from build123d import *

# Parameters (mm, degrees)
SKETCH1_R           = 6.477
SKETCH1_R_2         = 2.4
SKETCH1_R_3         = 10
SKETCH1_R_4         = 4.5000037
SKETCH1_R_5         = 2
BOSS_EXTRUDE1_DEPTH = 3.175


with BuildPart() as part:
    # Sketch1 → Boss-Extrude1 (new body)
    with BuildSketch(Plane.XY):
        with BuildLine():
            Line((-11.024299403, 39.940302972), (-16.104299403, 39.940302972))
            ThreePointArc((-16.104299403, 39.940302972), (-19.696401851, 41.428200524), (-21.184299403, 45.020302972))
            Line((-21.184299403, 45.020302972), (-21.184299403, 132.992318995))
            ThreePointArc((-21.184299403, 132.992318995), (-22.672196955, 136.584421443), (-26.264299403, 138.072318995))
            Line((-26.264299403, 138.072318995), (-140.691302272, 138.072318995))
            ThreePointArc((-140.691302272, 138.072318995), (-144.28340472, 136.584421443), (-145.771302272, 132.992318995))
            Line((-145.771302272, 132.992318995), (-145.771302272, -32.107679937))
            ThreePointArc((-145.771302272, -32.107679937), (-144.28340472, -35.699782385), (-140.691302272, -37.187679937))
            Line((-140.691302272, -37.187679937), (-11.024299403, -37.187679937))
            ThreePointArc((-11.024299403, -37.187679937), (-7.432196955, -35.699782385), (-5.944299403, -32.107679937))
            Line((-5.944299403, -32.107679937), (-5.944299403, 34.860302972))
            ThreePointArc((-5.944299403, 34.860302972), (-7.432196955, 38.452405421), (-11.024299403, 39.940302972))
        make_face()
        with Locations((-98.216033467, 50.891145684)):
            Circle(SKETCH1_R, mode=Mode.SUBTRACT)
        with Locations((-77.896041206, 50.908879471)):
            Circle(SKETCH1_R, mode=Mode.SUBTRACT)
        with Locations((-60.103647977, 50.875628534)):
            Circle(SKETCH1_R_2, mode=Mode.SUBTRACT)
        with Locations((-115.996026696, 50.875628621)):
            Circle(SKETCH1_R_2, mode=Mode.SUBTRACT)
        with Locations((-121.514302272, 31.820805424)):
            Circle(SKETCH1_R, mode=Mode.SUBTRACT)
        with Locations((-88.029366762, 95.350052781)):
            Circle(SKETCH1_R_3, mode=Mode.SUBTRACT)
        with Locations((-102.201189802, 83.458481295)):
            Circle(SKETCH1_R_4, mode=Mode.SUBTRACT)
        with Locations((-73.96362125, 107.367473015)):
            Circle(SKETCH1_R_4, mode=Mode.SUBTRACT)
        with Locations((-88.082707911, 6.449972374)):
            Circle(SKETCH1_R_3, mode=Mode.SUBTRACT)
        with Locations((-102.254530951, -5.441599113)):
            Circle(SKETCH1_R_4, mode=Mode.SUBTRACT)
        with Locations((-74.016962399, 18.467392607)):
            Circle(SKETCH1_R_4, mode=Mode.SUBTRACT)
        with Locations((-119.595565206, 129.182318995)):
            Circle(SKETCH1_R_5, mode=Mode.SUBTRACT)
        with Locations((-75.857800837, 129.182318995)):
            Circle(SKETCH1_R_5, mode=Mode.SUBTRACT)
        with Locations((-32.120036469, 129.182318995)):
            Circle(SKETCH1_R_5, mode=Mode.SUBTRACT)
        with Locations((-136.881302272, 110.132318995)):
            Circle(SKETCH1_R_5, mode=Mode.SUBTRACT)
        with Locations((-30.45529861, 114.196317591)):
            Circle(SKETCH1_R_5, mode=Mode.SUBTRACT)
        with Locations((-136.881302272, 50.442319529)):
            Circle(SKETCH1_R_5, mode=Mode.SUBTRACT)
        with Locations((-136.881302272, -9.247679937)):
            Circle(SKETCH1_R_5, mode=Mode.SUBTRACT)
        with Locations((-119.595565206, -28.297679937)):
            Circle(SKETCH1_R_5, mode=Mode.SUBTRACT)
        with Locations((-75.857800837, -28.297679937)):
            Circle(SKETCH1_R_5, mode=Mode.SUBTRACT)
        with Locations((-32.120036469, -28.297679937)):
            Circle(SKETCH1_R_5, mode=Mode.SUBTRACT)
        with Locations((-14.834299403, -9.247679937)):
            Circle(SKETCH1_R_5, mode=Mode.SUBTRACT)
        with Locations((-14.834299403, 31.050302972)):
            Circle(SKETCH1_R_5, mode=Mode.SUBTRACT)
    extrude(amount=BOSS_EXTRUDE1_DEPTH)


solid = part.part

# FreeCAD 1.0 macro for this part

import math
import FreeCAD as App
import Part
import Sketcher

V = App.Vector
Q = App.Units.Quantity

doc = App.newDocument("Part")
body = doc.addObject("PartDesign::Body", "Body")

# Sketch on XY plane
sketch1 = body.newObject("Sketcher::SketchObject", "Sketch")
sketch1.AttachmentSupport = (doc.getObject("XY_Plane"), [""])
sketch1.MapMode = "FlatFace"
sketch1.addGeometry(Part.LineSegment(V(-11.024299, 39.940303, 0), V(-16.104299, 39.940303, 0)), False)
sketch1.addGeometry(Part.ArcOfCircle(Part.Circle(V(-16.104299, 45.020303, 0), V(0, 0, 1), 5.08), math.radians(-180), math.radians(-90)), False)
sketch1.addGeometry(Part.LineSegment(V(-21.184299, 45.020303, 0), V(-21.184299, 132.992319, 0)), False)
sketch1.addGeometry(Part.ArcOfCircle(Part.Circle(V(-26.264299, 132.992319, 0), V(0, 0, 1), 5.08), math.radians(0), math.radians(90)), False)
sketch1.addGeometry(Part.LineSegment(V(-26.264299, 138.072319, 0), V(-140.691302, 138.072319, 0)), False)
sketch1.addGeometry(Part.ArcOfCircle(Part.Circle(V(-140.691302, 132.992319, 0), V(0, 0, 1), 5.08), math.radians(90), math.radians(180)), False)
sketch1.addGeometry(Part.LineSegment(V(-145.771302, 132.992319, 0), V(-145.771302, -32.10768, 0)), False)
sketch1.addGeometry(Part.ArcOfCircle(Part.Circle(V(-140.691302, -32.10768, 0), V(0, 0, 1), 5.08), math.radians(-180), math.radians(-90)), False)
sketch1.addGeometry(Part.LineSegment(V(-140.691302, -37.18768, 0), V(-11.024299, -37.18768, 0)), False)
sketch1.addGeometry(Part.ArcOfCircle(Part.Circle(V(-11.024299, -32.10768, 0), V(0, 0, 1), 5.08), math.radians(-90), math.radians(0)), False)
sketch1.addGeometry(Part.LineSegment(V(-5.944299, -32.10768, 0), V(-5.944299, 34.860303, 0)), False)
sketch1.addGeometry(Part.ArcOfCircle(Part.Circle(V(-11.024299, 34.860303, 0), V(0, 0, 1), 5.08), math.radians(0), math.radians(90)), False)
sketch1.addGeometry(Part.Circle(V(-119.595565, -28.29768, 0), V(0, 0, 1), 2), False)
sketch1.addGeometry(Part.Circle(V(-136.881302, -9.24768, 0), V(0, 0, 1), 2), False)
sketch1.addGeometry(Part.Circle(V(-102.254531, -5.441599, 0), V(0, 0, 1), 4.500004), False)
sketch1.addGeometry(Part.Circle(V(-88.082708, 6.449972, 0), V(0, 0, 1), 10), False)
sketch1.addGeometry(Part.Circle(V(-121.514302, 31.820805, 0), V(0, 0, 1), 6.477), False)
sketch1.addGeometry(Part.Circle(V(-75.857801, -28.29768, 0), V(0, 0, 1), 2), False)
sketch1.addGeometry(Part.Circle(V(-32.120036, -28.29768, 0), V(0, 0, 1), 2), False)
sketch1.addGeometry(Part.Circle(V(-14.834299, -9.24768, 0), V(0, 0, 1), 2), False)
sketch1.addGeometry(Part.Circle(V(-74.016962, 18.467393, 0), V(0, 0, 1), 4.500004), False)
sketch1.addGeometry(Part.Circle(V(-14.834299, 31.050303, 0), V(0, 0, 1), 2), False)
sketch1.addGeometry(Part.Circle(V(-136.881302, 50.44232, 0), V(0, 0, 1), 2), False)
sketch1.addGeometry(Part.Circle(V(-115.996027, 50.875629, 0), V(0, 0, 1), 2.4), False)
sketch1.addGeometry(Part.Circle(V(-98.216033, 50.891146, 0), V(0, 0, 1), 6.477), False)
sketch1.addGeometry(Part.Circle(V(-77.896041, 50.908879, 0), V(0, 0, 1), 6.477), False)
sketch1.addGeometry(Part.Circle(V(-102.20119, 83.458481, 0), V(0, 0, 1), 4.500004), False)
sketch1.addGeometry(Part.Circle(V(-136.881302, 110.132319, 0), V(0, 0, 1), 2), False)
sketch1.addGeometry(Part.Circle(V(-119.595565, 129.182319, 0), V(0, 0, 1), 2), False)
sketch1.addGeometry(Part.Circle(V(-88.029367, 95.350053, 0), V(0, 0, 1), 10), False)
sketch1.addGeometry(Part.Circle(V(-60.103648, 50.875629, 0), V(0, 0, 1), 2.4), False)
sketch1.addGeometry(Part.Circle(V(-73.963621, 107.367473, 0), V(0, 0, 1), 4.500004), False)
sketch1.addGeometry(Part.Circle(V(-75.857801, 129.182319, 0), V(0, 0, 1), 2), False)
sketch1.addGeometry(Part.Circle(V(-30.455299, 114.196318, 0), V(0, 0, 1), 2), False)
sketch1.addGeometry(Part.Circle(V(-32.120036, 129.182319, 0), V(0, 0, 1), 2), False)
sketch1.addConstraint(Sketcher.Constraint("Tangent", 0, 2, 1, 2))
sketch1.addConstraint(Sketcher.Constraint("Tangent", 1, 1, 2, 1))
sketch1.addConstraint(Sketcher.Constraint("Tangent", 2, 2, 3, 1))
sketch1.addConstraint(Sketcher.Constraint("Tangent", 3, 2, 4, 1))
sketch1.addConstraint(Sketcher.Constraint("Tangent", 4, 2, 5, 1))
sketch1.addConstraint(Sketcher.Constraint("Tangent", 5, 2, 6, 1))
sketch1.addConstraint(Sketcher.Constraint("Tangent", 6, 2, 7, 1))
sketch1.addConstraint(Sketcher.Constraint("Tangent", 7, 2, 8, 1))
sketch1.addConstraint(Sketcher.Constraint("Tangent", 8, 2, 9, 1))
sketch1.addConstraint(Sketcher.Constraint("Tangent", 9, 2, 10, 1))
sketch1.addConstraint(Sketcher.Constraint("Tangent", 10, 2, 11, 1))
sketch1.addConstraint(Sketcher.Constraint("Tangent", 11, 2, 0, 1))
sketch1.addConstraint(Sketcher.Constraint("Horizontal", 0))
sketch1.addConstraint(Sketcher.Constraint("Vertical", 2))
sketch1.addConstraint(Sketcher.Constraint("Horizontal", 4))
sketch1.addConstraint(Sketcher.Constraint("Vertical", 6))
sketch1.addConstraint(Sketcher.Constraint("Horizontal", 8))
sketch1.addConstraint(Sketcher.Constraint("Vertical", 10))
sketch1.addConstraint(Sketcher.Constraint("Equal", 1, 3))
sketch1.addConstraint(Sketcher.Constraint("Equal", 3, 5))
sketch1.addConstraint(Sketcher.Constraint("Equal", 5, 7))
sketch1.addConstraint(Sketcher.Constraint("Equal", 7, 9))
sketch1.addConstraint(Sketcher.Constraint("Equal", 9, 11))
sketch1.addConstraint(Sketcher.Constraint("Equal", 12, 13))
sketch1.addConstraint(Sketcher.Constraint("Equal", 13, 17))
sketch1.addConstraint(Sketcher.Constraint("Equal", 17, 18))
sketch1.addConstraint(Sketcher.Constraint("Equal", 18, 19))
sketch1.addConstraint(Sketcher.Constraint("Equal", 14, 20))
sketch1.addConstraint(Sketcher.Constraint("Equal", 19, 21))
sketch1.addConstraint(Sketcher.Constraint("Equal", 21, 22))
sketch1.addConstraint(Sketcher.Constraint("Equal", 16, 24))
sketch1.addConstraint(Sketcher.Constraint("Equal", 24, 25))
sketch1.addConstraint(Sketcher.Constraint("Equal", 20, 26))
sketch1.addConstraint(Sketcher.Constraint("Equal", 22, 27))
sketch1.addConstraint(Sketcher.Constraint("Equal", 27, 28))
sketch1.addConstraint(Sketcher.Constraint("Equal", 15, 29))
sketch1.addConstraint(Sketcher.Constraint("Equal", 23, 30))
sketch1.addConstraint(Sketcher.Constraint("Equal", 26, 31))
sketch1.addConstraint(Sketcher.Constraint("Equal", 28, 32))
sketch1.addConstraint(Sketcher.Constraint("Equal", 32, 33))
sketch1.addConstraint(Sketcher.Constraint("Equal", 33, 34))
sketch1.addConstraint(Sketcher.Constraint("Horizontal", 12, 3, 17, 3))
sketch1.addConstraint(Sketcher.Constraint("Horizontal", 17, 3, 18, 3))
sketch1.addConstraint(Sketcher.Constraint("Horizontal", 13, 3, 19, 3))
sketch1.addConstraint(Sketcher.Constraint("Horizontal", 23, 3, 30, 3))
sketch1.addConstraint(Sketcher.Constraint("Horizontal", 28, 3, 32, 3))
sketch1.addConstraint(Sketcher.Constraint("Horizontal", 32, 3, 34, 3))
sketch1.addConstraint(Sketcher.Constraint("Vertical", 19, 3, 21, 3))
sketch1.addConstraint(Sketcher.Constraint("Vertical", 13, 3, 22, 3))
sketch1.addConstraint(Sketcher.Constraint("Vertical", 22, 3, 27, 3))
sketch1.addConstraint(Sketcher.Constraint("Vertical", 12, 3, 28, 3))
sketch1.addConstraint(Sketcher.Constraint("Vertical", 17, 3, 32, 3))
sketch1.addConstraint(Sketcher.Constraint("Vertical", 18, 3, 34, 3))
sketch1.addConstraint(Sketcher.Constraint("Radius", 1, Q("0.2 in")))
sketch1.addConstraint(Sketcher.Constraint("Diameter", 16, Q("0.51 in")))
sketch1.addConstraint(Sketcher.Constraint("DistanceX", 0, 2, 0, 1, Q("0.2 in")))
sketch1.addConstraint(Sketcher.Constraint("DistanceY", 6, 2, 6, 1, Q("6.5 in")))
sketch1.addConstraint(Sketcher.Constraint("DistanceY", 7, 3, 13, 3, Q("0.9 in")))
sketch1.addConstraint(Sketcher.Constraint("DistanceY", 27, 3, 5, 3, Q("0.9 in")))
sketch1.addConstraint(Sketcher.Constraint("DistanceY", 22, 3, 28, 3, Q("3.1 in")))
sketch1.addConstraint(Sketcher.Constraint("Diameter", 12, 4.0))
sketch1.addConstraint(Sketcher.Constraint("Diameter", 15, 20.0))
sketch1.addConstraint(Sketcher.Constraint("Diameter", 23, 4.8))
sketch1.addConstraint(Sketcher.Constraint("DistanceX", 4, 2, 4, 1, Q("4.5050001 in")))
sketch1.addConstraint(Sketcher.Constraint("DistanceY", 7, 3, 12, 3, Q("0.15 in")))
sketch1.addConstraint(Sketcher.Constraint("DistanceX", 7, 3, 13, 3, Q("0.15 in")))
sketch1.addConstraint(Sketcher.Constraint("DistanceX", 19, 3, 9, 3, Q("0.15 in")))
sketch1.addConstraint(Sketcher.Constraint("DistanceY", 21, 3, 11, 3, Q("0.15 in")))
sketch1.addConstraint(Sketcher.Constraint("DistanceY", 13, 3, 22, 3, Q("2.35 in")))
sketch1.addConstraint(Sketcher.Constraint("DistanceY", 33, 3, 3, 3, Q("0.7400001 in")))
sketch1.addConstraint(Sketcher.Constraint("DistanceX", 13, 3, 16, 3, Q("0.605 in")))
sketch1.addConstraint(Sketcher.Constraint("DistanceX", 33, 3, 3, 3, Q("0.165 in")))
sketch1.addConstraint(Sketcher.Constraint("Diameter", 14, 9.000007))
sketch1.addConstraint(Sketcher.Constraint("DistanceX", 13, 3, 17, 3, Q("2.4025001 in")))
sketch1.addConstraint(Sketcher.Constraint("DistanceX", 1, 3, -1, 1, 16.104299))
sketch1.addConstraint(Sketcher.Constraint("DistanceY", 14, 3, -1, 1, 5.441599))
sketch1.addConstraint(Sketcher.Constraint("DistanceY", 25, 3, 26, 3, 32.549602))
sketch1.addConstraint(Sketcher.Constraint("DistanceX", 28, 3, 29, 3, 31.566198))
sketch1.addConstraint(Sketcher.Constraint("DistanceY", 2, 1, 2, 2, 87.972016))
sketch1.addConstraint(Sketcher.Constraint("DistanceY", -1, 1, 3, 3, 132.992319))
sketch1.addConstraint(Sketcher.Constraint("DistanceX", 14, 3, -1, 1, 102.254531))
sketch1.addConstraint(Sketcher.Constraint("DistanceY", -1, 1, 23, 3, 50.875629))
sketch1.addConstraint(Sketcher.Constraint("DistanceX", 25, 3, -1, 1, 77.896041))
sketch1.addConstraint(Sketcher.Constraint("DistanceY", -1, 1, 25, 3, 50.908879))
sketch1.addConstraint(Sketcher.Constraint("DistanceX", 26, 3, -1, 1, 102.20119))
sketch1.addConstraint(Sketcher.Constraint("DistanceX", 31, 3, -1, 1, 73.963621))
sketch1.addConstraint(Sketcher.Constraint("DistanceY", 14, 3, 15, 3, 11.891571))
sketch1.addConstraint(Sketcher.Constraint("DistanceX", 15, 3, 1, 3, 71.978409))
sketch1.addConstraint(Sketcher.Constraint("DistanceX", 15, 3, 18, 3, 55.962671))
sketch1.addConstraint(Sketcher.Constraint("DistanceY", 15, 3, 20, 3, 12.01742))
sketch1.addConstraint(Sketcher.Constraint("DistanceX", 14, 3, 20, 3, 28.237569))
sketch1.addConstraint(Sketcher.Constraint("DistanceX", 23, 3, 15, 3, 27.913319))
sketch1.addConstraint(Sketcher.Constraint("DistanceX", 16, 3, 24, 3, 23.298269))
sketch1.addConstraint(Sketcher.Constraint("DistanceY", 16, 3, 24, 3, 19.07034))
sketch1.addConstraint(Sketcher.Constraint("DistanceX", 28, 3, 23, 3, 3.599539))
sketch1.addConstraint(Sketcher.Constraint("DistanceY", 26, 3, 29, 3, 11.891571))
sketch1.addConstraint(Sketcher.Constraint("DistanceX", 30, 3, 1, 3, 43.999349))
sketch1.addConstraint(Sketcher.Constraint("DistanceY", 29, 3, 31, 3, 12.01742))
sketch1.addConstraint(Sketcher.Constraint("DistanceY", -1, 1, 16, 3, 31.820805))
pad1 = body.newObject("PartDesign::Pad", "Pad")
pad1.Profile = sketch1
pad1.Length = Q("0.125 in")

doc.recompute()
